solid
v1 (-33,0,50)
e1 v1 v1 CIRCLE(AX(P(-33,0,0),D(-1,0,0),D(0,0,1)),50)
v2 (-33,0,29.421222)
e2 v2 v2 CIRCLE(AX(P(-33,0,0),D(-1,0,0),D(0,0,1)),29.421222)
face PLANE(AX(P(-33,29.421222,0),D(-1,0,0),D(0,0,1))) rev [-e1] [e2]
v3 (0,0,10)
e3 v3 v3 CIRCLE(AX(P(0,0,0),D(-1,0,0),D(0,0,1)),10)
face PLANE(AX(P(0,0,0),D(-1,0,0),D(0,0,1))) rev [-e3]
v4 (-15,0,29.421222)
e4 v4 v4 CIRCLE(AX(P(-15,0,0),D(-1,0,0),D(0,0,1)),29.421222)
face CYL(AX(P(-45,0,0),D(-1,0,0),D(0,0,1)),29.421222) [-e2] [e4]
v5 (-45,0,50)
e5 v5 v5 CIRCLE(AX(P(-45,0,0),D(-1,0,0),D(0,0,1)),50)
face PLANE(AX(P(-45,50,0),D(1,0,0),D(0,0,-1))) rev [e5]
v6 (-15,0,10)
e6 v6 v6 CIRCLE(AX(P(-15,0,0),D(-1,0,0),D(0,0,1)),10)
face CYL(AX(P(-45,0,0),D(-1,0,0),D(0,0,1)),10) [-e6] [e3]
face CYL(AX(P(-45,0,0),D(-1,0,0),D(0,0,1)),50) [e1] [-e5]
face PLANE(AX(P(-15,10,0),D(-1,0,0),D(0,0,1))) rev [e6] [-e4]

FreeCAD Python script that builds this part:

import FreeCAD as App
import Part
import Sketcher
from FreeCAD import Vector

doc = App.newDocument("Part")
body = doc.addObject("PartDesign::Body", "Body")

# Sketch on XY plane
sketch1 = body.newObject("Sketcher::SketchObject", "Sketch")
sketch1.AttachmentSupport = (doc.getObject("XY_Plane"), [""])
sketch1.MapMode = "FlatFace"
sketch1.addGeometry(Part.LineSegment(Vector(0, 10, 0), Vector(-15, 10, 0)), False)
sketch1.addGeometry(Part.LineSegment(Vector(-15, 10, 0), Vector(-15, 29, 0)), False)
sketch1.addGeometry(Part.LineSegment(Vector(-15, 29, 0), Vector(-33, 29, 0)), False)
sketch1.addGeometry(Part.LineSegment(Vector(-33, 29, 0), Vector(-33, 50, 0)), False)
sketch1.addGeometry(Part.LineSegment(Vector(-33, 50, 0), Vector(-45, 50, 0)), False)
sketch1.addGeometry(Part.LineSegment(Vector(-45, 50, 0), Vector(-45, 0, 0)), False)
sketch1.addGeometry(Part.LineSegment(Vector(-45, 0, 0), Vector(0, 0, 0)), False)
sketch1.addGeometry(Part.LineSegment(Vector(0, 0, 0), Vector(0, 10, 0)), False)
sketch1.addConstraint(Sketcher.Constraint("Coincident", 0, 2, 1, 1))
sketch1.addConstraint(Sketcher.Constraint("Coincident", 1, 2, 2, 1))
sketch1.addConstraint(Sketcher.Constraint("Coincident", 2, 2, 3, 1))
sketch1.addConstraint(Sketcher.Constraint("Coincident", 3, 2, 4, 1))
sketch1.addConstraint(Sketcher.Constraint("Coincident", 4, 2, 5, 1))
sketch1.addConstraint(Sketcher.Constraint("Coincident", 5, 2, 6, 1))
sketch1.addConstraint(Sketcher.Constraint("Coincident", 6, 2, 7, 1))
sketch1.addConstraint(Sketcher.Constraint("Coincident", 7, 2, 0, 1))
sketch1.addConstraint(Sketcher.Constraint("Horizontal", 0))
sketch1.addConstraint(Sketcher.Constraint("Vertical", 1))
sketch1.addConstraint(Sketcher.Constraint("Horizontal", 2))
sketch1.addConstraint(Sketcher.Constraint("Vertical", 3))
sketch1.addConstraint(Sketcher.Constraint("Horizontal", 4))
sketch1.addConstraint(Sketcher.Constraint("Vertical", 5))
sketch1.addConstraint(Sketcher.Constraint("Horizontal", 6))
sketch1.addConstraint(Sketcher.Constraint("Vertical", 7))
sketch1.addConstraint(Sketcher.Constraint("Coincident", 6, 2, -1, 1))
sketch1.addConstraint(Sketcher.Constraint("DistanceX", 0, 2, 0, 1, 15.0))
sketch1.addConstraint(Sketcher.Constraint("DistanceX", 2, 2, 2, 1, 18.0))
sketch1.addConstraint(Sketcher.Constraint("DistanceX", 4, 2, 4, 1, 12.0))
sketch1.addConstraint(Sketcher.Constraint("DistanceY", 5, 2, 5, 1, 50.0))
sketch1.addConstraint(Sketcher.Constraint("DistanceY", 7, 1, 7, 2, 10.0))
sketch1.addConstraint(Sketcher.Constraint("DistanceY", 1, 1, 1, 2, 19.421222))
revolution = body.newObject("PartDesign::Revolution", "Revolution")
revolution.Profile = sketch1
revolution.ReferenceAxis = (sketch1, ["H_Axis"])
revolution.Angle = 360

doc.recompute()
